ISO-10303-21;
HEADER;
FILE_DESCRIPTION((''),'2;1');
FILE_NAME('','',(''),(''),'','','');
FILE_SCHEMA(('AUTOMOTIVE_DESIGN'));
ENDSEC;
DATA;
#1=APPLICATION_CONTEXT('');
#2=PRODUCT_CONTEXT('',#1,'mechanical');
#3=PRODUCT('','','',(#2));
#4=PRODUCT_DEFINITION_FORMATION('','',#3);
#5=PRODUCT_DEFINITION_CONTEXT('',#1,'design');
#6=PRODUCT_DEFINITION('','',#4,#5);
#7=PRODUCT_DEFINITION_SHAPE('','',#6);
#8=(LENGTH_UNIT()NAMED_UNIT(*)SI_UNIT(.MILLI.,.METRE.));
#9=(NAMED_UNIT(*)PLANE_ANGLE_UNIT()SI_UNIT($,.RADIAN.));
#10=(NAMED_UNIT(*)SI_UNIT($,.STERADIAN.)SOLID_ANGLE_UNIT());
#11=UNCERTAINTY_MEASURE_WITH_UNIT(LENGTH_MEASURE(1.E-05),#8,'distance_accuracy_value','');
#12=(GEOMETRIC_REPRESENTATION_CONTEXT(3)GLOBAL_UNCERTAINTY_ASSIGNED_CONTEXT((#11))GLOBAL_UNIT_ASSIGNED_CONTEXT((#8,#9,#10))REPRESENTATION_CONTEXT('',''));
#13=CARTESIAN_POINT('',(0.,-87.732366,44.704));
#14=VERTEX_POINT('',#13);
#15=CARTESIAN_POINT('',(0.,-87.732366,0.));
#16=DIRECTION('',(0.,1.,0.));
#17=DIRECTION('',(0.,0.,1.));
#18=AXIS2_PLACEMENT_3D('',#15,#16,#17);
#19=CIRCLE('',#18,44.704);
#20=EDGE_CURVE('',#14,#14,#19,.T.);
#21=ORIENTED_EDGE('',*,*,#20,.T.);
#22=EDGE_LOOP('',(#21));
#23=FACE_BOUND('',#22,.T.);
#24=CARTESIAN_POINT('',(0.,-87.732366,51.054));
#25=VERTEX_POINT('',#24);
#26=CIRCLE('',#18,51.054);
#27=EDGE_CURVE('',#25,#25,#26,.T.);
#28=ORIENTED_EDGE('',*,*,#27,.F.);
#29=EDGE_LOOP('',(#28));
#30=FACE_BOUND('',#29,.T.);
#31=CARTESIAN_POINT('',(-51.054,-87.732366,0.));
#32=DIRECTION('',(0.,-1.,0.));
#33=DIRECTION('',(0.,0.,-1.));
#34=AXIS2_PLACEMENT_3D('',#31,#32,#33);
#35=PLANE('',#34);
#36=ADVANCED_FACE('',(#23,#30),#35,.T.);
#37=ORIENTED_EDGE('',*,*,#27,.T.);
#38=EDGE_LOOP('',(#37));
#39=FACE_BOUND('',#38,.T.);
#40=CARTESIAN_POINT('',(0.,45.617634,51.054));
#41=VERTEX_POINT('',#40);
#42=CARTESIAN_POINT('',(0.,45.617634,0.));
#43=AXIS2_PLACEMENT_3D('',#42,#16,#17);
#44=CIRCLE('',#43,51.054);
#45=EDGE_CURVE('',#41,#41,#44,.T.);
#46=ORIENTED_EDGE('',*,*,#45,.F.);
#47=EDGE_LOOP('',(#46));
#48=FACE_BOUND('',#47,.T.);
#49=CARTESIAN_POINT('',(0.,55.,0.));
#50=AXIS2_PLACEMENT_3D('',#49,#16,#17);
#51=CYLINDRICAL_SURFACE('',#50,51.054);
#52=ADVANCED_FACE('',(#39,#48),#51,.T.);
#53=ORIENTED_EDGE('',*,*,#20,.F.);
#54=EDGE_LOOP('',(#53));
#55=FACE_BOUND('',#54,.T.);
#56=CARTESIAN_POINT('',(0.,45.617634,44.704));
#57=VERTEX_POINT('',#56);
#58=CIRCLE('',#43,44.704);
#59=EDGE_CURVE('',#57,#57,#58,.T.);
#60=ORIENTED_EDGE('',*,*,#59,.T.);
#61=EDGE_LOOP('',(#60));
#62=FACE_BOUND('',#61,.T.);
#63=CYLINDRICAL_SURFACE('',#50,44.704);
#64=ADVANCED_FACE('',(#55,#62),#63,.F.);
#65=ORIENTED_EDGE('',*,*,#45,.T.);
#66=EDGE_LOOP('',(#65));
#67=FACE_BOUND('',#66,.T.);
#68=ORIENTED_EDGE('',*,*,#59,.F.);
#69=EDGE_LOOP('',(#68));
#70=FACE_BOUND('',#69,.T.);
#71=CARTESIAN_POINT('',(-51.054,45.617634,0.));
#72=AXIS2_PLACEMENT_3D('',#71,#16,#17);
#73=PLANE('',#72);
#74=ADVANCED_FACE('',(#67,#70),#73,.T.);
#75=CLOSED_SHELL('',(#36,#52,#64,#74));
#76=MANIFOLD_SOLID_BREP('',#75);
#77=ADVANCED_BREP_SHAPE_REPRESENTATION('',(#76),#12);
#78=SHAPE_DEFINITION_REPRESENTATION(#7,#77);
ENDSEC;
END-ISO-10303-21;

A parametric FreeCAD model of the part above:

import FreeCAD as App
import Part
import Sketcher
from FreeCAD import Vector
Q = App.Units.Quantity


def add_polygon(sketch, points):
    """Adds a closed chain of lines whose ends are joined by coincident constraints."""
    first, n = sketch.GeometryCount, len(points)
    for a, b in zip(points, points[1:] + points[:1]):
        sketch.addGeometry(Part.LineSegment(App.Vector(*a, 0), App.Vector(*b, 0)), False)
    for i in range(n):
        sketch.addConstraint(Sketcher.Constraint("Coincident", first + i, 2, first + (i + 1) % n, 1))

doc = App.newDocument("Part")
body = doc.addObject("PartDesign::Body", "Body")

# Sketch on XY plane
sketch1 = body.newObject("Sketcher::SketchObject", "Sketch")
sketch1.AttachmentSupport = (doc.getObject("XY_Plane"), [""])
sketch1.MapMode = "FlatFace"
add_polygon(sketch1, [(-51, 46), (-51, -88), (-45, -88), (-45, 46)])  # lines 0-3
sketch1.addConstraint([
    Sketcher.Constraint("Vertical", 0),
    Sketcher.Constraint("Horizontal", 1),
    Sketcher.Constraint("Vertical", 2),
    Sketcher.Constraint("Horizontal", 3),
    Sketcher.Constraint("DistanceX", 1, 1, 1, 2, Q("0.25 in")),
    Sketcher.Constraint("DistanceY", 0, 2, 0, 1, Q("5.25 in")),
    Sketcher.Constraint("DistanceX", 0, 2, -1, 1, Q("2.01 in")),
    Sketcher.Constraint("DistanceY", 0, 2, -1, 1, Q("87.732366 mm")),
])
revolution = body.newObject("PartDesign::Revolution", "Revolution")
revolution.Profile = sketch1
revolution.ReferenceAxis = (sketch1, ["V_Axis"])
revolution.Angle = 360

doc.recompute()
